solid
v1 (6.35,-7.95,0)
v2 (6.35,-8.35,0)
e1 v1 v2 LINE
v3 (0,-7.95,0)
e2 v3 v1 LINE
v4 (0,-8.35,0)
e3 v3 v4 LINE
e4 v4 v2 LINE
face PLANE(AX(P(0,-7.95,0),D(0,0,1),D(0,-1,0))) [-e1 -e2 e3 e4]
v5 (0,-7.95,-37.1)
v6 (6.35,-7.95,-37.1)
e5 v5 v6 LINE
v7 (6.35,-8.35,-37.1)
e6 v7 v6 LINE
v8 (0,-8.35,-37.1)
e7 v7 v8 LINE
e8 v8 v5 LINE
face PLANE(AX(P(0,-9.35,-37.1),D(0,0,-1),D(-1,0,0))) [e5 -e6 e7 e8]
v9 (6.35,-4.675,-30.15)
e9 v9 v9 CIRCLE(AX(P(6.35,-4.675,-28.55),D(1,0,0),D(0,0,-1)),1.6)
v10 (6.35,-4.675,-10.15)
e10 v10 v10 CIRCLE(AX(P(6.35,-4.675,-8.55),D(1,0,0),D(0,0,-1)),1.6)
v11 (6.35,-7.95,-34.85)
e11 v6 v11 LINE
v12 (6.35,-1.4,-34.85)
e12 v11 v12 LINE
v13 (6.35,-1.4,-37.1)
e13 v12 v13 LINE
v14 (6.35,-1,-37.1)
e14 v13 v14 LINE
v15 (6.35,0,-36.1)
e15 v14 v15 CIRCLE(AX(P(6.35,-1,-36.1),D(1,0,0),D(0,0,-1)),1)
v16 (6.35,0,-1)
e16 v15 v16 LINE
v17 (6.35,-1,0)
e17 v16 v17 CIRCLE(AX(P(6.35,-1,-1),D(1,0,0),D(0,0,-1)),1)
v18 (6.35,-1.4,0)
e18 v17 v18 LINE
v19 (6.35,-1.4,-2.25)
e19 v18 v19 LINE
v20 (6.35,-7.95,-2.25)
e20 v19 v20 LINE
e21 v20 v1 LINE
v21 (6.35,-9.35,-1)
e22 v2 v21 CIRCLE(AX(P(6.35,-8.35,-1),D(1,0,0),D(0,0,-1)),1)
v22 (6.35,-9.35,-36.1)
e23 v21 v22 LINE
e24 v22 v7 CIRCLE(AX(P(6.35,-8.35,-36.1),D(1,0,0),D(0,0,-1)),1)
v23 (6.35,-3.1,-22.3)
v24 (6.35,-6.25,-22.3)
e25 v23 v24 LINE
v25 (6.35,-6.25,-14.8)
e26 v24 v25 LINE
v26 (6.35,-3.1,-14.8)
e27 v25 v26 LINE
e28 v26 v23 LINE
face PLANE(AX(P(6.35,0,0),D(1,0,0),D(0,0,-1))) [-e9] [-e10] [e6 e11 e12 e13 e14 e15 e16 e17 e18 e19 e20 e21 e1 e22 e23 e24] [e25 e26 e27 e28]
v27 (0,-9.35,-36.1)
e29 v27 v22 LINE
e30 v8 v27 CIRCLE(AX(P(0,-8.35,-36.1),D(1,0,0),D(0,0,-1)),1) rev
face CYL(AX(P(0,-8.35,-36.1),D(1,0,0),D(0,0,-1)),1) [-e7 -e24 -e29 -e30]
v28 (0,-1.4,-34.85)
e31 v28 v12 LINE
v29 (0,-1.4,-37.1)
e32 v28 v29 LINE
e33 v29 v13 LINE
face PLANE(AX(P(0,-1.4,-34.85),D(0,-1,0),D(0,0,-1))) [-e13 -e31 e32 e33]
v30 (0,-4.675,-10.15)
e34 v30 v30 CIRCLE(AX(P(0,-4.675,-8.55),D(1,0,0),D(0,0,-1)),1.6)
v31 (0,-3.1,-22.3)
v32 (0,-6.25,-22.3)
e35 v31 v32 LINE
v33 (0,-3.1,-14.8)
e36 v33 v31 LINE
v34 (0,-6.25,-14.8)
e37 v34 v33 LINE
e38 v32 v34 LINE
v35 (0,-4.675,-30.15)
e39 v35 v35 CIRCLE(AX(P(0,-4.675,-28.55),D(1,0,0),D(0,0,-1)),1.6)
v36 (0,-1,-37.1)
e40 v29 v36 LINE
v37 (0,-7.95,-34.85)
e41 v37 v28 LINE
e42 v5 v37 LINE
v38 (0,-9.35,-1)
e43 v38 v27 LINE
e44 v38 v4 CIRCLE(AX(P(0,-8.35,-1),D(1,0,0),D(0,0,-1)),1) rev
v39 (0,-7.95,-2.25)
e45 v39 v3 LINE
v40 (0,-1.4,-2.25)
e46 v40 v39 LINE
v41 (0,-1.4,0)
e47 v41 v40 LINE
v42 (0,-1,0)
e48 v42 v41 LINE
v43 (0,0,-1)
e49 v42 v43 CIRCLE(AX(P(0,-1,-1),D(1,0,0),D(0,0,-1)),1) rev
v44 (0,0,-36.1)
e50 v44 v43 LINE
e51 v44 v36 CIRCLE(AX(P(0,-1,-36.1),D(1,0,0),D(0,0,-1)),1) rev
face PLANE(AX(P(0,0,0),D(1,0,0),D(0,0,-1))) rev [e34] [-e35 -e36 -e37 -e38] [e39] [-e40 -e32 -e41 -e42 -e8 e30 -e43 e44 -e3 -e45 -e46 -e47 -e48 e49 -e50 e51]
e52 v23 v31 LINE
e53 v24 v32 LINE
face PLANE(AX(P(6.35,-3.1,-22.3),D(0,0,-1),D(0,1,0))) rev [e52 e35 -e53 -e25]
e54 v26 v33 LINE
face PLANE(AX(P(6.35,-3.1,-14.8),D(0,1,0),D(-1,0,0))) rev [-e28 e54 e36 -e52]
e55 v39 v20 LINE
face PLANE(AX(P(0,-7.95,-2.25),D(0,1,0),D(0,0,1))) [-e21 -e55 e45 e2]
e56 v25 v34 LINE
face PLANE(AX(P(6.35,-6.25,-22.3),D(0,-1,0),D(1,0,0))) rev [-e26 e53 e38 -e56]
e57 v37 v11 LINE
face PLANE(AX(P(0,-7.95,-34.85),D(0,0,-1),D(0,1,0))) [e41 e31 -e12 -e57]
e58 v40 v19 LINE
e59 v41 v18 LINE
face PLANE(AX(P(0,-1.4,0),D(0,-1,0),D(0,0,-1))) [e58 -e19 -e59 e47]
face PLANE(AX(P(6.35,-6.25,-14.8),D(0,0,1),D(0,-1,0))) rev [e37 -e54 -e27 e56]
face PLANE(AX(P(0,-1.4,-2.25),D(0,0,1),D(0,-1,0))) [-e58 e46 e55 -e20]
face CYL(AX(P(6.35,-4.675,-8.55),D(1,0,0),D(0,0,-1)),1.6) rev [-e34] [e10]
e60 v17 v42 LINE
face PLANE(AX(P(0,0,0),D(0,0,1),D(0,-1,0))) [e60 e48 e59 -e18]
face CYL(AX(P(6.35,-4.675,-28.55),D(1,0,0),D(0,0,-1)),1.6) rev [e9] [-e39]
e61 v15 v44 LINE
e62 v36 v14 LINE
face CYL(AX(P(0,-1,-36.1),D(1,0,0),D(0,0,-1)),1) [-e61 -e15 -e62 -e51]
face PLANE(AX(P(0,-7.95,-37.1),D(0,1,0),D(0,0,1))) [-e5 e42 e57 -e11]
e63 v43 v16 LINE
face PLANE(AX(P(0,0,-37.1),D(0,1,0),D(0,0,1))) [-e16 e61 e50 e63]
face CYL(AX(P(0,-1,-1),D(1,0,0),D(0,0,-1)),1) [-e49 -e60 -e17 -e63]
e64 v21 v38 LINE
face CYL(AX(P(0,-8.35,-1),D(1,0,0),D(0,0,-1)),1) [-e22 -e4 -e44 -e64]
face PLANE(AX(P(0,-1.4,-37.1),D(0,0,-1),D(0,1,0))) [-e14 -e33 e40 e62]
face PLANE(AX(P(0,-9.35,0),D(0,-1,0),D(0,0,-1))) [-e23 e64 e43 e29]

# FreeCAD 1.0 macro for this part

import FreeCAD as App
import Part
import Sketcher
from FreeCAD import Vector


def edges_at(feature, points):
    """Names of the edges that pass closest to the given points."""
    edges = feature.Shape.Edges
    near = lambda p: min(range(len(edges)), key=lambda i: edges[i].distToShape(Part.Vertex(*p))[0])
    return sorted({f"Edge{near(p) + 1}" for p in points})


def add_polygon(sketch, points):
    """Adds a closed chain of lines whose ends are joined by coincident constraints."""
    first, n = sketch.GeometryCount, len(points)
    for a, b in zip(points, points[1:] + points[:1]):
        sketch.addGeometry(Part.LineSegment(App.Vector(*a, 0), App.Vector(*b, 0)), False)
    for i in range(n):
        sketch.addConstraint(Sketcher.Constraint("Coincident", first + i, 2, first + (i + 1) % n, 1))

doc = App.newDocument("Part")
params = doc.addObject("Spreadsheet::Sheet", "Params")
for row, (alias, value) in enumerate([
    ("sketch1_width", "1.4 mm"),
    ("sketch1_height", "37.1 mm"),
    ("sketch1_width2", "6.55 mm"),
    ("sketch1_height2", "2.25 mm"),
    ("pad1_length", "6.35 mm"),
    ("fillet_radius", "1 mm"),
    ("sketch2_height", "7.5 mm"),
    ("sketch2_width", "3.15 mm"),
    ("sketch3_diameter", "3.2 mm"),
    ("hole_diameter", "3.2 mm"),
    ("hole_depth", "6.35 mm"),
    ("sketch4_diameter", "3.2 mm"),
    ("hole2_diameter", "3.2 mm"),
    ("hole2_depth", "6.35 mm"),
], start=1):
    params.set(f"A{row}", alias)
    params.set(f"B{row}", "=" + value)
    params.setAlias(f"B{row}", alias)

body = doc.addObject("PartDesign::Body", "Body")

# Sketch on YZ plane
sketch1 = doc.addObject("Sketcher::SketchObject", "Sketch")
body.addObject(sketch1)
sketch1.AttachmentSupport = (doc.YZ_Plane, [""])
sketch1.MapMode = "FlatFace"
sketch1.AttachmentOffset = App.Placement(Vector(0, 0, 6.35), App.Rotation())
add_polygon(sketch1, [(-8, -37.1), (-8, -34.9), (-1.4, -34.9), (-1.4, -37.1), (0, -37.1), (0, 0), (-1.4, 0), (-1.4, -2.2), (-8, -2.2), (-8, 0), (-9.3, 0), (-9.3, -37.1)])  # lines 0-11
sketch1.addConstraint(Sketcher.Constraint("Vertical", 0))
sketch1.addConstraint(Sketcher.Constraint("Horizontal", 1))
sketch1.addConstraint(Sketcher.Constraint("Vertical", 2))
sketch1.addConstraint(Sketcher.Constraint("Horizontal", 3))
sketch1.addConstraint(Sketcher.Constraint("Vertical", 4))
sketch1.addConstraint(Sketcher.Constraint("Horizontal", 5))
sketch1.addConstraint(Sketcher.Constraint("Vertical", 6))
sketch1.addConstraint(Sketcher.Constraint("Horizontal", 7))
sketch1.addConstraint(Sketcher.Constraint("Vertical", 8))
sketch1.addConstraint(Sketcher.Constraint("Horizontal", 9))
sketch1.addConstraint(Sketcher.Constraint("Vertical", 10))
sketch1.addConstraint(Sketcher.Constraint("Horizontal", 11))
sketch1.addConstraint(Sketcher.Constraint("Coincident", 4, 2, -1, 1))
sketch1.addConstraint(Sketcher.Constraint("PointOnObject", 8, 2, -1))
sketch1.addConstraint(Sketcher.Constraint("Horizontal", 3, 2, 10, 2))
sketch1.addConstraint(Sketcher.Constraint("Vertical", 2, 2, 5, 2))
sketch1.addConstraint(Sketcher.Constraint("Vertical", 0, 2, 7, 2))
sketch1.addConstraint(Sketcher.Constraint("Equal", 5, 9))
sketch1.addConstraint(Sketcher.Constraint("Equal", 2, 6))
sketch1.addConstraint(Sketcher.Constraint("DistanceX", 3, 1, 3, 2, 1.4))
sketch1.addConstraint(Sketcher.Constraint("DistanceY", 4, 1, 4, 2, 37.1))
sketch1.addConstraint(Sketcher.Constraint("DistanceX", 1, 1, 1, 2, 6.55))
sketch1.addConstraint(Sketcher.Constraint("DistanceY", 0, 1, 0, 2, 2.25))
sketch1.setExpression("Constraints[31]", "Params.sketch1_width")
sketch1.setExpression("Constraints[32]", "Params.sketch1_height")
sketch1.setExpression("Constraints[33]", "Params.sketch1_width2")
sketch1.setExpression("Constraints[34]", "Params.sketch1_height2")
pad1 = doc.addObject("PartDesign::Pad", "Pad")
body.addObject(pad1)
pad1.Profile = sketch1
pad1.setExpression("Length", "Params.pad1_length")
pad1.Reversed = True
doc.recompute()

fillet = doc.addObject("PartDesign::Fillet", "Fillet")
body.addObject(fillet)
fillet.Base = (pad1, edges_at(pad1, [
    (3.175, -9.35, -37.1),
    (3.175, -9.35, 0),
    (3.175, 0, 0),
    (3.175, 0, -37.1),
]))
fillet.setExpression("Radius", "Params.fillet_radius")

# Sketch on YZ plane
sketch2 = doc.addObject("Sketcher::SketchObject", "Sketch001")
body.addObject(sketch2)
sketch2.AttachmentSupport = (doc.YZ_Plane, [""])
sketch2.MapMode = "FlatFace"
add_polygon(sketch2, [(-3.1, -22.3), (-6.2, -22.3), (-6.2, -14.8), (-3.1, -14.8)])  # lines 0-3
sketch2.addConstraint(Sketcher.Constraint("Horizontal", 0))
sketch2.addConstraint(Sketcher.Constraint("Vertical", 1))
sketch2.addConstraint(Sketcher.Constraint("Horizontal", 2))
sketch2.addConstraint(Sketcher.Constraint("Vertical", 3))
sketch2.addConstraint(Sketcher.Constraint("DistanceY", 1, 1, 1, 2, 7.5))
sketch2.addConstraint(Sketcher.Constraint("DistanceX", 0, 2, 0, 1, 3.15))
sketch2.addConstraint(Sketcher.Constraint("DistanceY", 0, 2, -1, 1, 22.3))
sketch2.addConstraint(Sketcher.Constraint("DistanceX", 2, 2, -1, 1, 3.1))
sketch2.setExpression("Constraints[8]", "Params.sketch2_height")
sketch2.setExpression("Constraints[9]", "Params.sketch2_width")
pocket1 = doc.addObject("PartDesign::Pocket", "Pocket")
body.addObject(pocket1)
pocket1.Profile = sketch2
pocket1.Type = "ThroughAll"
pocket1.Reversed = True

# Sketch on YZ plane
sketch3 = doc.addObject("Sketcher::SketchObject", "Sketch002")
body.addObject(sketch3)
sketch3.AttachmentSupport = (doc.YZ_Plane, [""])
sketch3.MapMode = "FlatFace"
sketch3.AttachmentOffset = App.Placement(Vector(0, 0, 6.35), App.Rotation())
sketch3.addGeometry(Part.Circle(Vector(-4.7, -28.6, 0), Vector(0, 0, 1), 1.6), False)
sketch3.addConstraint(Sketcher.Constraint("Diameter", 0, 3.2))
sketch3.addConstraint(Sketcher.Constraint("DistanceY", 0, 3, -1, 1, 28.55))
sketch3.addConstraint(Sketcher.Constraint("DistanceX", 0, 3, -1, 1, 4.675))
sketch3.setExpression("Constraints[0]", "Params.sketch3_diameter")
doc.recompute()
hole = doc.addObject("PartDesign::Hole", "Hole")
body.addObject(hole)
hole.Profile = sketch3
hole.ThreadType = "None"
hole.setExpression("Diameter", "Params.hole_diameter")
hole.DepthType = "Dimension"
hole.setExpression("Depth", "Params.hole_depth")
hole.DrillPoint = "Flat"

# Sketch on YZ plane
sketch4 = doc.addObject("Sketcher::SketchObject", "Sketch003")
body.addObject(sketch4)
sketch4.AttachmentSupport = (doc.YZ_Plane, [""])
sketch4.MapMode = "FlatFace"
sketch4.AttachmentOffset = App.Placement(Vector(0, 0, 6.35), App.Rotation())
sketch4.addGeometry(Part.Circle(Vector(-4.7, -8.6, 0), Vector(0, 0, 1), 1.6), False)
sketch4.addConstraint(Sketcher.Constraint("Diameter", 0, 3.2))
sketch4.addConstraint(Sketcher.Constraint("DistanceY", 0, 3, -1, 1, 8.55))
sketch4.addConstraint(Sketcher.Constraint("DistanceX", 0, 3, -1, 1, 4.675))
sketch4.setExpression("Constraints[0]", "Params.sketch4_diameter")
doc.recompute()
hole2 = doc.addObject("PartDesign::Hole", "Hole001")
body.addObject(hole2)
hole2.Profile = sketch4
hole2.ThreadType = "None"
hole2.setExpression("Diameter", "Params.hole2_diameter")
hole2.DepthType = "Dimension"
hole2.setExpression("Depth", "Params.hole2_depth")
hole2.DrillPoint = "Flat"

doc.recompute()
